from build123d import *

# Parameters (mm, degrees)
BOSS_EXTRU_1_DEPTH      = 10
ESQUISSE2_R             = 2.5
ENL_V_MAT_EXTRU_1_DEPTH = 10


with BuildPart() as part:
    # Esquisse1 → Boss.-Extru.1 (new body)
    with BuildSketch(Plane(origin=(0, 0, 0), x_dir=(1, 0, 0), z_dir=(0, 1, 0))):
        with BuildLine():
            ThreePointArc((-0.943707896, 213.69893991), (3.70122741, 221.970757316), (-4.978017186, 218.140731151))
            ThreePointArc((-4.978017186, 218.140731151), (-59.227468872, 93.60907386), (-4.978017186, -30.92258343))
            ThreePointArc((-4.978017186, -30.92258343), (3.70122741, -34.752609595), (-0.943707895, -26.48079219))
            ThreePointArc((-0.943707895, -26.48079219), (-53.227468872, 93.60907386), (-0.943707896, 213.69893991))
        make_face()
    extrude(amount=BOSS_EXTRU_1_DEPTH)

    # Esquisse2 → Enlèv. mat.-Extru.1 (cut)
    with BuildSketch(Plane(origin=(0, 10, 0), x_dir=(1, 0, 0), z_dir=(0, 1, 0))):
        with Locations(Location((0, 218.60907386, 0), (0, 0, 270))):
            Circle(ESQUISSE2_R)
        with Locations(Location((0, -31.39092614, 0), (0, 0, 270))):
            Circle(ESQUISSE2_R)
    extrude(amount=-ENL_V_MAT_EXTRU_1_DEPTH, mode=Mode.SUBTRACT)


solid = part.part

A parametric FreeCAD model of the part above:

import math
import FreeCAD as App
import Part
import Sketcher
from FreeCAD import Vector
Q = App.Units.Quantity

doc = App.newDocument("Part")
body = doc.addObject("PartDesign::Body", "Body")

# Sketch on XZ plane
sketch1 = body.newObject("Sketcher::SketchObject", "Sketch")
sketch1.AttachmentSupport = (doc.getObject("XZ_Plane"), [""])
sketch1.MapMode = "FlatFace"
sketch1.addGeometry([
    Part.ArcOfCircle(Part.Circle(Vector(0, -219, 0), Vector(0, 0, 1), 5), math.radians(175), math.radians(461)),
    Part.ArcOfCircle(Part.Circle(Vector(111, -94, 0), Vector(0, 0, 1), 170), math.radians(133), math.radians(227)),
    Part.ArcOfCircle(Part.Circle(Vector(0, 31, 0), Vector(0, 0, 1), 5), math.radians(-101), math.radians(185)),
    Part.ArcOfCircle(Part.Circle(Vector(111, -94, 0), Vector(0, 0, 1), 164), math.radians(133), math.radians(227)),
], False)
sketch1.addConstraint([
    Sketcher.Constraint("Coincident", 0, 1, 1, 2),
    Sketcher.Constraint("Coincident", 1, 1, 2, 2),
    Sketcher.Constraint("Coincident", 2, 1, 3, 1),
    Sketcher.Constraint("Coincident", 3, 2, 0, 2),
    Sketcher.Constraint("Coincident", 3, 3, 1, 3),
    Sketcher.Constraint("Equal", 0, 2),
    Sketcher.Constraint("PointOnObject", 0, 3, -2),
    Sketcher.Constraint("PointOnObject", 2, 3, -2),
    Sketcher.Constraint("Vertical", 2, 1, 3, 2),
    Sketcher.Constraint("Radius", 0, Q("5 mm")),
    Sketcher.Constraint("DistanceY", 0, 3, 1, 3, Q("125 mm")),
    Sketcher.Constraint("Radius", 1, Q("170.058278 mm")),
    Sketcher.Constraint("Radius", 3, Q("164.058278 mm")),
    Sketcher.Constraint("DistanceX", -1, 1, 1, 3, Q("110.830809 mm")),
    Sketcher.Constraint("DistanceY", 0, 1, -1, 1, Q("218.140731 mm")),
])
pad1 = body.newObject("PartDesign::Pad", "Pad")
pad1.Profile = sketch1
pad1.Length = 10
pad1.Reversed = True

# Sketch on XZ plane
sketch2 = body.newObject("Sketcher::SketchObject", "Sketch001")
sketch2.AttachmentSupport = (doc.getObject("XZ_Plane"), [""])
sketch2.MapMode = "FlatFace"
sketch2.AttachmentOffset = App.Placement(Vector(0, 0, -10), App.Rotation())
sketch2.addGeometry([
    Part.Circle(Vector(0, -218.6, 0), Vector(0, 0, 1), 2.5),
    Part.Circle(Vector(0, 31.4, 0), Vector(0, 0, 1), 2.5),
], False)
sketch2.addConstraint([
    Sketcher.Constraint("Equal", 0, 1),
    Sketcher.Constraint("PointOnObject", 0, 3, -2),
    Sketcher.Constraint("PointOnObject", 1, 3, -2),
    Sketcher.Constraint("Diameter", 0, Q("5 mm")),
    Sketcher.Constraint("DistanceY", 0, 3, 1, 3, Q("250 mm")),
    Sketcher.Constraint("DistanceY", 0, 3, -1, 1, Q("218.609074 mm")),
])
pocket1 = body.newObject("PartDesign::Pocket", "Pocket")
pocket1.Profile = sketch2
pocket1.Length = 10
pocket1.Reversed = True

doc.recompute()
